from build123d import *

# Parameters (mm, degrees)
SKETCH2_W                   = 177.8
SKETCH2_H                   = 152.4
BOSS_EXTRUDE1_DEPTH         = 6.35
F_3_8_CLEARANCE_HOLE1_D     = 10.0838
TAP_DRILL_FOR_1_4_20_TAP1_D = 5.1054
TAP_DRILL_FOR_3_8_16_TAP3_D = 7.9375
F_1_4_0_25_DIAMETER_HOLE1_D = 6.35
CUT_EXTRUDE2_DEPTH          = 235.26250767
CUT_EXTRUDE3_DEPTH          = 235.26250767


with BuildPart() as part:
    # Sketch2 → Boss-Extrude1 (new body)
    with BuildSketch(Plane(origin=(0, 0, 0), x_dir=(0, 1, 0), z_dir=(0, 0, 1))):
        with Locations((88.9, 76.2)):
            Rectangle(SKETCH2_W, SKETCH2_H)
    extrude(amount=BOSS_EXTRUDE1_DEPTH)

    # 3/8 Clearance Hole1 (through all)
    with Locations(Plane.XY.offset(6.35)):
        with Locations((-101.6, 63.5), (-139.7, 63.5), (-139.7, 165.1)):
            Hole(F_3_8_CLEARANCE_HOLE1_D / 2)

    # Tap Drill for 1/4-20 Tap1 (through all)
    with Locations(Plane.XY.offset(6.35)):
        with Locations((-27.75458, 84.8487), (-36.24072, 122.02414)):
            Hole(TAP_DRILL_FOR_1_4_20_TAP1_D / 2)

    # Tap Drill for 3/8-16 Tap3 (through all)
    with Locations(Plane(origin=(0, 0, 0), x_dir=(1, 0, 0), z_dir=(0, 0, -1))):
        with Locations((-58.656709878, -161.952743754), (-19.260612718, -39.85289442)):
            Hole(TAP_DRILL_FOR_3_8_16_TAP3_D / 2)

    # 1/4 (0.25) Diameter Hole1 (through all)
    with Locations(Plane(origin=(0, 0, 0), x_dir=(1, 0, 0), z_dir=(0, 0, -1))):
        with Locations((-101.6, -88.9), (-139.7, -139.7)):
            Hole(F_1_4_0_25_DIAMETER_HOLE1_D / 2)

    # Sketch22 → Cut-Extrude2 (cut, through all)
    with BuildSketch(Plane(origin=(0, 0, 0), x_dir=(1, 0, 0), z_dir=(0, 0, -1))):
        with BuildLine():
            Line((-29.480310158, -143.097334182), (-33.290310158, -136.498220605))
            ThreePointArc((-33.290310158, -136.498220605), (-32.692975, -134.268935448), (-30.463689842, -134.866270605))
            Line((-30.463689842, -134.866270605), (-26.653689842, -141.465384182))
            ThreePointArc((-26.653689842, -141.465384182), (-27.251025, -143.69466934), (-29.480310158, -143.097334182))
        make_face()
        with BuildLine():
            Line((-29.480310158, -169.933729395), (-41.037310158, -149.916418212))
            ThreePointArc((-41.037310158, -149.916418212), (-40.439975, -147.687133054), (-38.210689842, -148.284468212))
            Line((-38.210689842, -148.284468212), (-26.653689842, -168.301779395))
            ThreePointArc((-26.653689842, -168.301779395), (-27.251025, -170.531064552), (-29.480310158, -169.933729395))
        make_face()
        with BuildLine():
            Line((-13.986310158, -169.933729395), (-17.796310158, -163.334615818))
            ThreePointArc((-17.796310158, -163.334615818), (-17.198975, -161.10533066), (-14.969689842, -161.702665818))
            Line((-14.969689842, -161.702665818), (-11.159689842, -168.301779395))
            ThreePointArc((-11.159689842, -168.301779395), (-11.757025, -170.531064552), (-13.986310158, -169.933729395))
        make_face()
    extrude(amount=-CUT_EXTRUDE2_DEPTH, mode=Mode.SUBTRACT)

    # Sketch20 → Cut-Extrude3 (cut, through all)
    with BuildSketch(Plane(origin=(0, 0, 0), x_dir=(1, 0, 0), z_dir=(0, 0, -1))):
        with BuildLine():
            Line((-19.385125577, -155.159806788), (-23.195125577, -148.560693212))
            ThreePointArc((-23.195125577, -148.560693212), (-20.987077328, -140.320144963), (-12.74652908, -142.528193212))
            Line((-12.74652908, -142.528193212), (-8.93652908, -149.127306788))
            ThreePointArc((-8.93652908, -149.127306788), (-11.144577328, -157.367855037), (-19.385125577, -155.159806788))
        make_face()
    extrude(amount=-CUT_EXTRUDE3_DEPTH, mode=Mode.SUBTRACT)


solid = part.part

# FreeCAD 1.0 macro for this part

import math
import FreeCAD as App
import Part
import Sketcher
Q = App.Units.Quantity

doc = App.newDocument("Part")
params = doc.addObject("Spreadsheet::Sheet", "Params")
for row, (alias, value) in enumerate([
    ("sketch1_width", "6 in"),
    ("sketch1_height", "7 in"),
    ("pad1_length", "0.25 in"),
    ("sketch2_diameter", "0.397 in"),
    ("hole_diameter", "0.397 in"),
    ("sketch3_diameter", "0.201 in"),
    ("hole2_diameter", "0.201 in"),
    ("sketch4_diameter", "0.3125 in"),
    ("hole3_diameter", "0.3125 in"),
    ("sketch5_diameter", "0.25 in"),
    ("hole4_diameter", "0.25 in"),
    ("sketch6_length", "0.3 in"),
    ("sketch6_length2", "0.91 in"),
    ("sketch7_length", "0.3 in"),
], start=1):
    params.set(f"A{row}", alias)
    params.set(f"B{row}", "=" + value)
    params.setAlias(f"B{row}", alias)

body = doc.addObject("PartDesign::Body", "Body")

sketch1 = body.newObject("Sketcher::SketchObject", "Sketch")
sketch1.AttachmentSupport = (doc.getObject("XY_Plane"), [""])
sketch1.MapMode = "FlatFace"
sketch1.addGeometry(Part.LineSegment(App.Vector(-152, 0, 0), App.Vector(0, 0, 0)), False)
sketch1.addGeometry(Part.LineSegment(App.Vector(0, 0, 0), App.Vector(0, 178, 0)), False)
sketch1.addGeometry(Part.LineSegment(App.Vector(0, 178, 0), App.Vector(-152, 178, 0)), False)
sketch1.addGeometry(Part.LineSegment(App.Vector(-152, 178, 0), App.Vector(-152, 0, 0)), False)
sketch1.addConstraint(Sketcher.Constraint("Coincident", 0, 2, 1, 1))
sketch1.addConstraint(Sketcher.Constraint("Coincident", 1, 2, 2, 1))
sketch1.addConstraint(Sketcher.Constraint("Coincident", 2, 2, 3, 1))
sketch1.addConstraint(Sketcher.Constraint("Coincident", 3, 2, 0, 1))
sketch1.addConstraint(Sketcher.Constraint("Horizontal", 0))
sketch1.addConstraint(Sketcher.Constraint("Vertical", 1))
sketch1.addConstraint(Sketcher.Constraint("Horizontal", 2))
sketch1.addConstraint(Sketcher.Constraint("Vertical", 3))
sketch1.addConstraint(Sketcher.Constraint("Coincident", 0, 2, -1, 1))
sketch1.addConstraint(Sketcher.Constraint("DistanceX", 0, 1, 0, 2, Q("6 in")))
sketch1.addConstraint(Sketcher.Constraint("DistanceY", 1, 1, 1, 2, Q("7 in")))
sketch1.setExpression("Constraints[9]", "Params.sketch1_width")
sketch1.setExpression("Constraints[10]", "Params.sketch1_height")
pad1 = body.newObject("PartDesign::Pad", "Pad")
pad1.Profile = sketch1
pad1.setExpression("Length", "Params.pad1_length")

sketch2 = body.newObject("Sketcher::SketchObject", "Sketch001")
sketch2.AttachmentSupport = (doc.getObject("XY_Plane"), [""])
sketch2.MapMode = "FlatFace"
sketch2.AttachmentOffset = App.Placement(App.Vector(0, 0, 0.25 * 25.4), App.Rotation())
sketch2.addGeometry(Part.Circle(App.Vector(-102, 64, 0), App.Vector(0, 0, 1), 5), False)
sketch2.addGeometry(Part.Circle(App.Vector(-140, 64, 0), App.Vector(0, 0, 1), 5), False)
sketch2.addGeometry(Part.Circle(App.Vector(-140, 165, 0), App.Vector(0, 0, 1), 5), False)
sketch2.addConstraint(Sketcher.Constraint("Equal", 0, 1))
sketch2.addConstraint(Sketcher.Constraint("Equal", 1, 2))
sketch2.addConstraint(Sketcher.Constraint("Horizontal", 0, 3, 1, 3))
sketch2.addConstraint(Sketcher.Constraint("Vertical", 1, 3, 2, 3))
sketch2.addConstraint(Sketcher.Constraint("Diameter", 0, Q("0.397 in")))
sketch2.addConstraint(Sketcher.Constraint("DistanceX", 0, 3, -1, 1, Q("4 in")))
sketch2.addConstraint(Sketcher.Constraint("DistanceY", 1, 3, 2, 3, Q("4 in")))
sketch2.addConstraint(Sketcher.Constraint("DistanceY", -1, 1, 0, 3, Q("2.5 in")))
sketch2.addConstraint(Sketcher.Constraint("DistanceX", 1, 3, -1, 1, Q("5.5 in")))
sketch2.setExpression("Constraints[4]", "Params.sketch2_diameter")
doc.recompute()
hole = body.newObject("PartDesign::Hole", "Hole")
hole.Profile = sketch2
hole.ThreadType = "None"
hole.setExpression("Diameter", "Params.hole_diameter")
hole.DepthType = "ThroughAll"

sketch3 = body.newObject("Sketcher::SketchObject", "Sketch002")
sketch3.AttachmentSupport = (doc.getObject("XY_Plane"), [""])
sketch3.MapMode = "FlatFace"
sketch3.AttachmentOffset = App.Placement(App.Vector(0, 0, 0.25 * 25.4), App.Rotation())
sketch3.addGeometry(Part.Circle(App.Vector(-27.8, 84.8, 0), App.Vector(0, 0, 1), 2.6), False)
sketch3.addGeometry(Part.Circle(App.Vector(-36.2, 122, 0), App.Vector(0, 0, 1), 2.6), False)
sketch3.addConstraint(Sketcher.Constraint("Equal", 0, 1))
sketch3.addConstraint(Sketcher.Constraint("Diameter", 0, Q("0.201 in")))
sketch3.addConstraint(Sketcher.Constraint("DistanceX", 0, 3, -1, 1, Q("1.0927 in")))
sketch3.addConstraint(Sketcher.Constraint("DistanceY", -1, 1, 0, 3, Q("3.3405 in")))
sketch3.addConstraint(Sketcher.Constraint("DistanceX", 1, 3, -1, 1, Q("1.4268 in")))
sketch3.addConstraint(Sketcher.Constraint("DistanceY", -1, 1, 1, 3, Q("4.8041 in")))
sketch3.setExpression("Constraints[1]", "Params.sketch3_diameter")
doc.recompute()
hole2 = body.newObject("PartDesign::Hole", "Hole001")
hole2.Profile = sketch3
hole2.ThreadType = "None"
hole2.setExpression("Diameter", "Params.hole2_diameter")
hole2.DepthType = "ThroughAll"

sketch4 = body.newObject("Sketcher::SketchObject", "Sketch003")
sketch4.AttachmentSupport = (doc.getObject("XY_Plane"), [""])
sketch4.MapMode = "FlatFace"
sketch4.addGeometry(Part.Circle(App.Vector(-58.7, 162, 0), App.Vector(0, 0, 1), 4), False)
sketch4.addGeometry(Part.Circle(App.Vector(-19.3, 39.9, 0), App.Vector(0, 0, 1), 4), False)
sketch4.addConstraint(Sketcher.Constraint("Equal", 0, 1))
sketch4.addConstraint(Sketcher.Constraint("Diameter", 0, Q("0.3125 in")))
sketch4.addConstraint(Sketcher.Constraint("DistanceX", 0, 3, -1, 1, 58.65671))
sketch4.addConstraint(Sketcher.Constraint("DistanceY", 1, 3, 0, 3, 122.099849))
sketch4.addConstraint(Sketcher.Constraint("DistanceY", -1, 1, 0, 3, 161.952744))
sketch4.addConstraint(Sketcher.Constraint("DistanceX", 1, 3, -1, 1, 19.260613))
sketch4.setExpression("Constraints[1]", "Params.sketch4_diameter")
doc.recompute()
hole3 = body.newObject("PartDesign::Hole", "Hole002")
hole3.Profile = sketch4
hole3.ThreadType = "None"
hole3.setExpression("Diameter", "Params.hole3_diameter")
hole3.DepthType = "ThroughAll"
hole3.Reversed = True

sketch5 = body.newObject("Sketcher::SketchObject", "Sketch004")
sketch5.AttachmentSupport = (doc.getObject("XY_Plane"), [""])
sketch5.MapMode = "FlatFace"
sketch5.addGeometry(Part.Circle(App.Vector(-101.6, 88.9, 0), App.Vector(0, 0, 1), 3.2), False)
sketch5.addGeometry(Part.Circle(App.Vector(-139.7, 139.7, 0), App.Vector(0, 0, 1), 3.2), False)
sketch5.addConstraint(Sketcher.Constraint("Equal", 0, 1))
sketch5.addConstraint(Sketcher.Constraint("Diameter", 0, Q("0.25 in")))
sketch5.addConstraint(Sketcher.Constraint("DistanceX", 0, 3, -1, 1, Q("4 in")))
sketch5.addConstraint(Sketcher.Constraint("DistanceY", 0, 3, 1, 3, Q("2 in")))
sketch5.addConstraint(Sketcher.Constraint("DistanceY", -1, 1, 0, 3, Q("3.5 in")))
sketch5.addConstraint(Sketcher.Constraint("DistanceX", 1, 3, -1, 1, Q("5.5 in")))
sketch5.setExpression("Constraints[1]", "Params.sketch5_diameter")
doc.recompute()
hole4 = body.newObject("PartDesign::Hole", "Hole003")
hole4.Profile = sketch5
hole4.ThreadType = "None"
hole4.setExpression("Diameter", "Params.hole4_diameter")
hole4.DepthType = "ThroughAll"
hole4.Reversed = True

sketch6 = body.newObject("Sketcher::SketchObject", "Sketch005")
sketch6.AttachmentSupport = (doc.getObject("XY_Plane"), [""])
sketch6.MapMode = "FlatFace"
sketch6.addGeometry(Part.LineSegment(App.Vector(-33.3, 136.5, 0), App.Vector(-29.5, 143.1, 0)), False)
sketch6.addGeometry(Part.ArcOfCircle(Part.Circle(App.Vector(-28.1, 142.3, 0), App.Vector(0, 0, 1), 1.6), math.radians(-30), math.radians(150)), False)
sketch6.addGeometry(Part.LineSegment(App.Vector(-26.7, 141.5, 0), App.Vector(-30.5, 134.9, 0)), False)
sketch6.addGeometry(Part.ArcOfCircle(Part.Circle(App.Vector(-31.9, 135.7, 0), App.Vector(0, 0, 1), 1.6), math.radians(150), math.radians(330)), False)
sketch6.addGeometry(Part.LineSegment(App.Vector(-41, 149.9, 0), App.Vector(-29.5, 169.9, 0)), False)
sketch6.addGeometry(Part.ArcOfCircle(Part.Circle(App.Vector(-28.1, 169.1, 0), App.Vector(0, 0, 1), 1.6), math.radians(-30), math.radians(150)), False)
sketch6.addGeometry(Part.LineSegment(App.Vector(-26.7, 168.3, 0), App.Vector(-38.2, 148.3, 0)), False)
sketch6.addGeometry(Part.ArcOfCircle(Part.Circle(App.Vector(-39.6, 149.1, 0), App.Vector(0, 0, 1), 1.6), math.radians(150), math.radians(330)), False)
sketch6.addGeometry(Part.LineSegment(App.Vector(-17.8, 163.3, 0), App.Vector(-14, 169.9, 0)), False)
sketch6.addGeometry(Part.ArcOfCircle(Part.Circle(App.Vector(-12.6, 169.1, 0), App.Vector(0, 0, 1), 1.6), math.radians(-30), math.radians(150)), False)
sketch6.addGeometry(Part.LineSegment(App.Vector(-11.2, 168.3, 0), App.Vector(-15, 161.7, 0)), False)
sketch6.addGeometry(Part.ArcOfCircle(Part.Circle(App.Vector(-16.4, 162.5, 0), App.Vector(0, 0, 1), 1.6), math.radians(150), math.radians(330)), False)
sketch6.addConstraint(Sketcher.Constraint("Tangent", 0, 2, 1, 2))
sketch6.addConstraint(Sketcher.Constraint("Tangent", 1, 1, 2, 1))
sketch6.addConstraint(Sketcher.Constraint("Tangent", 2, 2, 3, 2))
sketch6.addConstraint(Sketcher.Constraint("Tangent", 3, 1, 0, 1))
sketch6.addConstraint(Sketcher.Constraint("Tangent", 4, 2, 5, 2))
sketch6.addConstraint(Sketcher.Constraint("Tangent", 5, 1, 6, 1))
sketch6.addConstraint(Sketcher.Constraint("Tangent", 6, 2, 7, 2))
sketch6.addConstraint(Sketcher.Constraint("Tangent", 7, 1, 4, 1))
sketch6.addConstraint(Sketcher.Constraint("Tangent", 8, 2, 9, 2))
sketch6.addConstraint(Sketcher.Constraint("Tangent", 9, 1, 10, 1))
sketch6.addConstraint(Sketcher.Constraint("Tangent", 10, 2, 11, 2))
sketch6.addConstraint(Sketcher.Constraint("Tangent", 11, 1, 8, 1))
sketch6.addConstraint(Sketcher.Constraint("Equal", 1, 3))
sketch6.addConstraint(Sketcher.Constraint("Equal", 3, 5))
sketch6.addConstraint(Sketcher.Constraint("Equal", 5, 7))
sketch6.addConstraint(Sketcher.Constraint("Equal", 7, 9))
sketch6.addConstraint(Sketcher.Constraint("Equal", 9, 11))
sketch6.addConstraint(Sketcher.Constraint("Parallel", 2, 4))
sketch6.addConstraint(Sketcher.Constraint("Parallel", 6, 8))
sketch6.addConstraint(Sketcher.Constraint("Horizontal", 5, 3, 9, 3))
sketch6.addConstraint(Sketcher.Constraint("Vertical", 1, 3, 5, 3))
sketch6.addConstraint(Sketcher.Constraint("Equal", 2, 8))
sketch6.addConstraint(Sketcher.Constraint("Angle", 0, Q("60 deg")))
sketch6.addConstraint(Sketcher.Constraint("Distance", 0, Q("0.3 in")))
sketch6.addConstraint(Sketcher.Constraint("Distance", 4, Q("0.91 in")))
sketch6.addConstraint(Sketcher.Constraint("DistanceX", 7, 3, -1, 1, Q("1.56 in")))
sketch6.addConstraint(Sketcher.Constraint("DistanceX", 5, 3, 9, 3, Q("0.61 in")))
sketch6.addConstraint(Sketcher.Constraint("Radius", 1, 1.63195))
sketch6.addConstraint(Sketcher.Constraint("DistanceY", -1, 1, 1, 3, 142.281359))
sketch6.addConstraint(Sketcher.Constraint("DistanceY", -1, 1, 11, 3, 162.518641))
sketch6.setExpression("Constraints[23]", "Params.sketch6_length")
sketch6.setExpression("Constraints[24]", "Params.sketch6_length2")
pocket1 = body.newObject("PartDesign::Pocket", "Pocket")
pocket1.Profile = sketch6
pocket1.Type = "ThroughAll"
pocket1.Reversed = True

sketch7 = body.newObject("Sketcher::SketchObject", "Sketch006")
sketch7.AttachmentSupport = (doc.getObject("XY_Plane"), [""])
sketch7.MapMode = "FlatFace"
sketch7.addGeometry(Part.LineSegment(App.Vector(-23, 149, 0), App.Vector(-19, 155, 0)), False)
sketch7.addGeometry(Part.ArcOfCircle(Part.Circle(App.Vector(-14, 152, 0), App.Vector(0, 0, 1), 6), math.radians(-30), math.radians(150)), False)
sketch7.addGeometry(Part.LineSegment(App.Vector(-9, 149, 0), App.Vector(-13, 143, 0)), False)
sketch7.addGeometry(Part.ArcOfCircle(Part.Circle(App.Vector(-18, 146, 0), App.Vector(0, 0, 1), 6), math.radians(150), math.radians(330)), False)
sketch7.addConstraint(Sketcher.Constraint("Tangent", 0, 2, 1, 2))
sketch7.addConstraint(Sketcher.Constraint("Tangent", 1, 1, 2, 1))
sketch7.addConstraint(Sketcher.Constraint("Tangent", 2, 2, 3, 2))
sketch7.addConstraint(Sketcher.Constraint("Tangent", 3, 1, 0, 1))
sketch7.addConstraint(Sketcher.Constraint("Equal", 1, 3))
sketch7.addConstraint(Sketcher.Constraint("Angle", 0, Q("60 deg")))
sketch7.addConstraint(Sketcher.Constraint("Distance", 0, Q("0.3 in")))
sketch7.addConstraint(Sketcher.Constraint("Radius", 1, Q("0.2375 in")))
sketch7.addConstraint(Sketcher.Constraint("DistanceX", 1, 1, -1, 1, 8.936529))
sketch7.addConstraint(Sketcher.Constraint("DistanceY", -1, 1, 1, 3, 152.143557))
sketch7.setExpression("Constraints[6]", "Params.sketch7_length")
pocket2 = body.newObject("PartDesign::Pocket", "Pocket001")
pocket2.Profile = sketch7
pocket2.Type = "ThroughAll"
pocket2.Reversed = True

doc.recompute()
